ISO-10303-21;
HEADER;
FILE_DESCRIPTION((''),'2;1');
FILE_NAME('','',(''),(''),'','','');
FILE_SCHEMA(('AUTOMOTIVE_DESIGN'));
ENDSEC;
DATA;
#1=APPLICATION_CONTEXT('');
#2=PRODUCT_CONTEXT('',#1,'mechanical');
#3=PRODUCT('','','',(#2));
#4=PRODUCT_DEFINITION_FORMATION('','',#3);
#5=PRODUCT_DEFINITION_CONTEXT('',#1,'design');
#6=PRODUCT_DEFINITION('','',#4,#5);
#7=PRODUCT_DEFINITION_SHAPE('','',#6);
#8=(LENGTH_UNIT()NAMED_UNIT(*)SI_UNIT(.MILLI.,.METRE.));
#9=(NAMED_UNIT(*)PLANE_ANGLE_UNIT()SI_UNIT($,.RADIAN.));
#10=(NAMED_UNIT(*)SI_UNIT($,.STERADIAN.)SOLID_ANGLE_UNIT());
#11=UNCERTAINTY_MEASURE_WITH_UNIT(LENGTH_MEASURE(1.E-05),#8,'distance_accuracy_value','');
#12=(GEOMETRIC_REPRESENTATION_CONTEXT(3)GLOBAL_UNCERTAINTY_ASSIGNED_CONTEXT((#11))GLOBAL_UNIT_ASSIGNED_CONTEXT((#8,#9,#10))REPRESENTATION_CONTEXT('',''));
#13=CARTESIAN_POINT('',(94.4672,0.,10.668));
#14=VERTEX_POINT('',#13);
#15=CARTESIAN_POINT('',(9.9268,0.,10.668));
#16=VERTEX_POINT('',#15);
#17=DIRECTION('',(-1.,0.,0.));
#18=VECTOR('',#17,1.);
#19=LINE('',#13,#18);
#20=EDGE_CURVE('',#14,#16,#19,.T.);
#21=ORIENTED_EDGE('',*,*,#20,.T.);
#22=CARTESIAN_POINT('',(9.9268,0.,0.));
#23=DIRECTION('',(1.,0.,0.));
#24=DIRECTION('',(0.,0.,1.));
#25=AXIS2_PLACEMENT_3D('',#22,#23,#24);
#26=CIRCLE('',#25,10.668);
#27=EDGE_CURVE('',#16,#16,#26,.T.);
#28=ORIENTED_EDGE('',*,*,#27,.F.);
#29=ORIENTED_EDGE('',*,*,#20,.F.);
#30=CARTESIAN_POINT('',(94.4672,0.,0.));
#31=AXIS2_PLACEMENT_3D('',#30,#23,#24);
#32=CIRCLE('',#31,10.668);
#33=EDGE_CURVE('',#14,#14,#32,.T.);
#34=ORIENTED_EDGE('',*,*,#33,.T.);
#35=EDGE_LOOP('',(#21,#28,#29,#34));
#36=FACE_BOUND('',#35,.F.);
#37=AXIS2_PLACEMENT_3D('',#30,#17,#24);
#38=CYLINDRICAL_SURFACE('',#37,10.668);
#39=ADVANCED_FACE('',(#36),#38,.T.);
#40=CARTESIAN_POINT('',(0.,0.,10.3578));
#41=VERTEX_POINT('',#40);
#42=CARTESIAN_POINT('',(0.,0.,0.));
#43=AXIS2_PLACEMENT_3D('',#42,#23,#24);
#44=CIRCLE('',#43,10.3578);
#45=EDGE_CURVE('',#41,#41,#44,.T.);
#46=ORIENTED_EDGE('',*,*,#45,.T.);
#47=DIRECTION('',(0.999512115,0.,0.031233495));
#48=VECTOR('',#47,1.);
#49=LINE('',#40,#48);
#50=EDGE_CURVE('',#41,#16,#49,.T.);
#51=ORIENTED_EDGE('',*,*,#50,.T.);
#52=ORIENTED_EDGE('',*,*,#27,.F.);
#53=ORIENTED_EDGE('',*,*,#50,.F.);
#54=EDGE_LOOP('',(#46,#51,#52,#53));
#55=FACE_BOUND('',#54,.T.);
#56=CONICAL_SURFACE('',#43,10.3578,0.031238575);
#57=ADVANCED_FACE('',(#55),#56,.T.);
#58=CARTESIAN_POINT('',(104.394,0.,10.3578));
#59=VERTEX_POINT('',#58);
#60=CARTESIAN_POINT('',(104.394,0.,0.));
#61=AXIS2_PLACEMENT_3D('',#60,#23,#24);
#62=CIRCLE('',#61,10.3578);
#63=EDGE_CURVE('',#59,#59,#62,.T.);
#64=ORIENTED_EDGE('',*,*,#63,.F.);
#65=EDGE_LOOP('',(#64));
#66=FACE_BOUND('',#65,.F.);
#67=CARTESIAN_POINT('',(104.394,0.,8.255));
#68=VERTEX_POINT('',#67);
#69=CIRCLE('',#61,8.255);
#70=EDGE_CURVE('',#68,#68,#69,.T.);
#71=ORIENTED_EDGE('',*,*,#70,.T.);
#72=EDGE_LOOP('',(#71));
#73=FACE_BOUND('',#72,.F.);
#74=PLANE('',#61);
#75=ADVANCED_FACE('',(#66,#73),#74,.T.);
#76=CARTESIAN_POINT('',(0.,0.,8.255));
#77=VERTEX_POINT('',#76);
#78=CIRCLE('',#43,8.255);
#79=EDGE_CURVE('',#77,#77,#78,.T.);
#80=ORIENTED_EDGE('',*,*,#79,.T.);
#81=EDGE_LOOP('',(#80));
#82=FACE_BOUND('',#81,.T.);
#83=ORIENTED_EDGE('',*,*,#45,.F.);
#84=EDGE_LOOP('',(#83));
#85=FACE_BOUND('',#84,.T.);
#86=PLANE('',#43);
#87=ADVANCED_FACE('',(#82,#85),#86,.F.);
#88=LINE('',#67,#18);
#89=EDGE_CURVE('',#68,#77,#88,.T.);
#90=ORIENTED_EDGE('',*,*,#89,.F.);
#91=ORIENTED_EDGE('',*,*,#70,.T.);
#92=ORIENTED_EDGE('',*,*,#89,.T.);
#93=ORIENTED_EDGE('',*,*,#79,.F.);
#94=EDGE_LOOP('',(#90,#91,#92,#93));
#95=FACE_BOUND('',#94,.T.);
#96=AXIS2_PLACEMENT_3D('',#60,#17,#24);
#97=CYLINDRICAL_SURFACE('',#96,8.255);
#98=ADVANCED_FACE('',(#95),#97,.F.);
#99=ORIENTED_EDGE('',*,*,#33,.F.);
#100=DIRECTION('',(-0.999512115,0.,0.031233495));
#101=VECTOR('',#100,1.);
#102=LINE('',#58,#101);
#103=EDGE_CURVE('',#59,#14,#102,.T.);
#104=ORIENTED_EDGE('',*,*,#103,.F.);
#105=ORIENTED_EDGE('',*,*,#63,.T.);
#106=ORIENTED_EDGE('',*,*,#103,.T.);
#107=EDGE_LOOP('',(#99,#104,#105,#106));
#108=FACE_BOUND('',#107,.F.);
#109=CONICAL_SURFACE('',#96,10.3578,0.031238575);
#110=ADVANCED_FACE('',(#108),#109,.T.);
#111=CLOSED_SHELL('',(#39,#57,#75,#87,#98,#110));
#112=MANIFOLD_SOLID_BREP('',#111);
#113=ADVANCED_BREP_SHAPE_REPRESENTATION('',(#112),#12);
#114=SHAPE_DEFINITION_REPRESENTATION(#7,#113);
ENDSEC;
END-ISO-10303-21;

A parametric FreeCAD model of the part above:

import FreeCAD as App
import Part
import Sketcher
from FreeCAD import Vector
Q = App.Units.Quantity


def add_polygon(sketch, points):
    """Adds a closed chain of lines whose ends are joined by coincident constraints."""
    first, n = sketch.GeometryCount, len(points)
    for a, b in zip(points, points[1:] + points[:1]):
        sketch.addGeometry(Part.LineSegment(App.Vector(*a, 0), App.Vector(*b, 0)), False)
    for i in range(n):
        sketch.addConstraint(Sketcher.Constraint("Coincident", first + i, 2, first + (i + 1) % n, 1))

doc = App.newDocument("Part")
body = doc.addObject("PartDesign::Body", "Body")

# Sketch on XZ plane
sketch1 = doc.addObject("Sketcher::SketchObject", "Sketch")
body.addObject(sketch1)
sketch1.AttachmentSupport = (doc.XZ_Plane, [""])
sketch1.MapMode = "FlatFace"
add_polygon(sketch1, [(104.4, 10.4), (104.4, 8.3), (0, 8.3), (0, 10.4), (9.9, 10.7), (94.5, 10.7)])  # lines 0-5
sketch1.addConstraint([
    Sketcher.Constraint("Vertical", 0),
    Sketcher.Constraint("Horizontal", 1),
    Sketcher.Constraint("Vertical", 2),
    Sketcher.Constraint("Horizontal", 4),
    Sketcher.Constraint("PointOnObject", 1, 2, -2),
    Sketcher.Constraint("Horizontal", 2, 2, 5, 2),
    Sketcher.Constraint("Equal", 3, 5),
    Sketcher.Constraint("DistanceX", 1, 2, 1, 1, Q("4.11 in")),
    Sketcher.Constraint("Angle", 3, Q("1.7898 deg")),
    Sketcher.Constraint("DistanceY", -1, 1, 3, 2, Q("0.42 in")),
    Sketcher.Constraint("Distance", 3, Q("0.391 in")),
    Sketcher.Constraint("DistanceY", -1, 1, 0, 2, Q("0.325 in")),
])
revolution = doc.addObject("PartDesign::Revolution", "Revolution")
body.addObject(revolution)
revolution.Profile = sketch1
revolution.ReferenceAxis = (sketch1, ["H_Axis"])
revolution.Angle = 360

doc.recompute()
